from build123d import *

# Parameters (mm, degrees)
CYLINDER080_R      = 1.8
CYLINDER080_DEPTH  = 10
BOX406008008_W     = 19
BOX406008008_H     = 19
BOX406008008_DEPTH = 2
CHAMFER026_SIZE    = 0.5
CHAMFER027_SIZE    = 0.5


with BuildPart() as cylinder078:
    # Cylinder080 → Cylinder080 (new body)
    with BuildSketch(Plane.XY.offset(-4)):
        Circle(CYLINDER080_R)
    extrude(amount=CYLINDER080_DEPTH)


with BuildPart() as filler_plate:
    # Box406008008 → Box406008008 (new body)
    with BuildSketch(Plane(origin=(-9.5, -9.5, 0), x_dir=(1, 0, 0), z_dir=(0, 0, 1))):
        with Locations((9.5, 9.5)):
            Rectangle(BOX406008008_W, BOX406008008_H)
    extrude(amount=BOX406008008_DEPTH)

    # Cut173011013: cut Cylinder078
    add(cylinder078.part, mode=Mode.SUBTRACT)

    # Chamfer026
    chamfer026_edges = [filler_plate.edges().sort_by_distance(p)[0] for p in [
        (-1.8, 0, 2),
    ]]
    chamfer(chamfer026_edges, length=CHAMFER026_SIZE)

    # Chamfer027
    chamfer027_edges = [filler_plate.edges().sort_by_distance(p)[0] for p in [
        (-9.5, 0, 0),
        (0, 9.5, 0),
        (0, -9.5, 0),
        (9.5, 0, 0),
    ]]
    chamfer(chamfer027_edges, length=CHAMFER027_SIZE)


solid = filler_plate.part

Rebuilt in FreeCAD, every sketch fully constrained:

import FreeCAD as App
import Part
import Sketcher


def edges_at(feature, points):
    """Names of the edges that pass closest to the given points."""
    edges = feature.Shape.Edges
    near = lambda p: min(range(len(edges)), key=lambda i: edges[i].distToShape(Part.Vertex(*p))[0])
    return sorted({f"Edge{near(p) + 1}" for p in points})

doc = App.newDocument("Part")
body = doc.addObject("PartDesign::Body", "Body")

# Sketch on XY plane
sketch1 = body.newObject("Sketcher::SketchObject", "Sketch")
sketch1.AttachmentSupport = (doc.getObject("XY_Plane"), [""])
sketch1.MapMode = "FlatFace"
sketch1.AttachmentOffset = App.Placement(App.Vector(0, 0, -4), App.Rotation())
sketch1.addGeometry(Part.Circle(App.Vector(0, 0, 0), App.Vector(0, 0, 1), 1.8), False)
sketch1.addConstraint(Sketcher.Constraint("Coincident", 0, 3, -1, 1))
sketch1.addConstraint(Sketcher.Constraint("Diameter", 0, 3.6))
pad1 = body.newObject("PartDesign::Pad", "Pad")
pad1.Profile = sketch1
pad1.Length = 10
body2 = doc.addObject("PartDesign::Body", "Body001")

# Sketch on XY plane
sketch2 = body2.newObject("Sketcher::SketchObject", "Sketch001")
sketch2.AttachmentSupport = (doc.getObject("XY_Plane001"), [""])
sketch2.MapMode = "FlatFace"
sketch2.addGeometry(Part.LineSegment(App.Vector(-10, 10, 0), App.Vector(-10, -10, 0)), False)
sketch2.addGeometry(Part.LineSegment(App.Vector(-10, -10, 0), App.Vector(10, -10, 0)), False)
sketch2.addGeometry(Part.LineSegment(App.Vector(10, -10, 0), App.Vector(10, 10, 0)), False)
sketch2.addGeometry(Part.LineSegment(App.Vector(10, 10, 0), App.Vector(-10, 10, 0)), False)
sketch2.addConstraint(Sketcher.Constraint("Coincident", 0, 2, 1, 1))
sketch2.addConstraint(Sketcher.Constraint("Coincident", 1, 2, 2, 1))
sketch2.addConstraint(Sketcher.Constraint("Coincident", 2, 2, 3, 1))
sketch2.addConstraint(Sketcher.Constraint("Coincident", 3, 2, 0, 1))
sketch2.addConstraint(Sketcher.Constraint("Vertical", 0))
sketch2.addConstraint(Sketcher.Constraint("Horizontal", 1))
sketch2.addConstraint(Sketcher.Constraint("Vertical", 2))
sketch2.addConstraint(Sketcher.Constraint("Horizontal", 3))
sketch2.addConstraint(Sketcher.Constraint("Symmetric", 0, 2, 2, 2, -1, 1))
sketch2.addConstraint(Sketcher.Constraint("Equal", 3, 0))
sketch2.addConstraint(Sketcher.Constraint("DistanceX", 1, 1, 1, 2, 19.0))
pad2 = body2.newObject("PartDesign::Pad", "Pad001")
pad2.Profile = sketch2
pad2.Length = 2
doc.recompute()

boolean = body2.newObject("PartDesign::Boolean", "Boolean")
boolean.Type = "Cut"
boolean.addObjects([body])
doc.recompute()

chamfer = body2.newObject("PartDesign::Chamfer", "Chamfer")
chamfer.Base = (boolean, edges_at(boolean, [(-1.8, 0, 2)]))
chamfer.Size = 0.5
doc.recompute()

chamfer2 = body2.newObject("PartDesign::Chamfer", "Chamfer001")
chamfer2.Base = (chamfer, edges_at(chamfer, [
    (-9.5, 0, 0),
    (0, 9.5, 0),
    (0, -9.5, 0),
    (9.5, 0, 0),
]))
chamfer2.Size = 0.5

doc.recompute()
